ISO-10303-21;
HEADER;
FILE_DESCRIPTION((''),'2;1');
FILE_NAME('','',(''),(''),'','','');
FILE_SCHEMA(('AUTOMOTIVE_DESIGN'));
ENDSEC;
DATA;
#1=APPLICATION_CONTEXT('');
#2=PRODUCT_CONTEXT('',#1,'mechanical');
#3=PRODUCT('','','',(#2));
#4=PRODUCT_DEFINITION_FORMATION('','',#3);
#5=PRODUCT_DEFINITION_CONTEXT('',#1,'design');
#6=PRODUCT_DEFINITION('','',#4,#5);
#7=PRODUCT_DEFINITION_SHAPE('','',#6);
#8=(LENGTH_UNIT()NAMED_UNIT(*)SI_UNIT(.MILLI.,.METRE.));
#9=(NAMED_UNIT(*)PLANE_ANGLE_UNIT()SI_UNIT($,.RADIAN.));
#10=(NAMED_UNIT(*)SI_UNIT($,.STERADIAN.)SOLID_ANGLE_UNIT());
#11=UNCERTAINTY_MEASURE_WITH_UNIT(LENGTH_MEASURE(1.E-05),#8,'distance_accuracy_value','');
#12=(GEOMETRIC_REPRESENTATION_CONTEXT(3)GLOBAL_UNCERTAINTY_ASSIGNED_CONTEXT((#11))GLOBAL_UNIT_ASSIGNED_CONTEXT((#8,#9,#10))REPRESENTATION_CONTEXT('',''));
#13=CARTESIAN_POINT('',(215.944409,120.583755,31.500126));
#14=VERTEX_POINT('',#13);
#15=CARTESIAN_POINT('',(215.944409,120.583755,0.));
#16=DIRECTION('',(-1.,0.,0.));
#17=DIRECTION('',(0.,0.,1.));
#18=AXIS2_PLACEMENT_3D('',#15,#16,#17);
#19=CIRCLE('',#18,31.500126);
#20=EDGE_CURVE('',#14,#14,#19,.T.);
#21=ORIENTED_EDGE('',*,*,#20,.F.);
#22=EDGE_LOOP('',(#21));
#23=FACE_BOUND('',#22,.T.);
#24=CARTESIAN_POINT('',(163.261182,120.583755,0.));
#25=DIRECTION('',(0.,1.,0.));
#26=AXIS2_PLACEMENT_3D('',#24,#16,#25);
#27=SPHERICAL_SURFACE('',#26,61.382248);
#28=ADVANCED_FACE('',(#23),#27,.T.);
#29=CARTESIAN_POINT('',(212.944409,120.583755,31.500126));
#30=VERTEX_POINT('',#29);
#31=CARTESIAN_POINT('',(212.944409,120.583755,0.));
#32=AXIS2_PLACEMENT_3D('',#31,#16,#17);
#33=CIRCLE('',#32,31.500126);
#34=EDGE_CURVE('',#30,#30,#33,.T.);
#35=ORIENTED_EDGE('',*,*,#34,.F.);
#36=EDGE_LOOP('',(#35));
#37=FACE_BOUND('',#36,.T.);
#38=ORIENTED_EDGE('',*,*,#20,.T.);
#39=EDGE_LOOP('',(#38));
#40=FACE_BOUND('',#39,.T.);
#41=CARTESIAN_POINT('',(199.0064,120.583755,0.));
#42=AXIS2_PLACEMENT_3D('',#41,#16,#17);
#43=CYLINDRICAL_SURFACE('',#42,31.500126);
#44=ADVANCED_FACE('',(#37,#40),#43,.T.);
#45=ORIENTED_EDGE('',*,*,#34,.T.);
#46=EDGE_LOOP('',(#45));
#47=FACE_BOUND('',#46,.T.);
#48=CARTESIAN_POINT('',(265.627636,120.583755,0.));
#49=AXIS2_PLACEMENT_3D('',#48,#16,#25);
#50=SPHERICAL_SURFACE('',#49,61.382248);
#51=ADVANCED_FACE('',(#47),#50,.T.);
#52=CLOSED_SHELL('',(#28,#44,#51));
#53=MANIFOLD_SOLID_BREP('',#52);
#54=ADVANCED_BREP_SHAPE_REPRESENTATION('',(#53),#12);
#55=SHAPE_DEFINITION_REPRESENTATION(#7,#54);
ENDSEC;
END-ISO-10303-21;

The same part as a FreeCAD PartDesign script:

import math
import FreeCAD as App
import Part
import Sketcher
from FreeCAD import Vector
Q = App.Units.Quantity

doc = App.newDocument("Part")
body = doc.addObject("PartDesign::Body", "Body")

# Sketch on XY plane
sketch1 = body.newObject("Sketcher::SketchObject", "Sketch")
sketch1.AttachmentSupport = (doc.getObject("XY_Plane"), [""])
sketch1.MapMode = "FlatFace"
sketch1.addGeometry([
    Part.LineSegment(Vector(212.9, 120.6, 0), Vector(224.6, 120.6, 0)),  # 0
    Part.ArcOfCircle(Part.Circle(Vector(163.3, 120.6, 0), Vector(0, 0, 1), 61.4), math.radians(0), math.radians(31)),  # 1
    Part.LineSegment(Vector(215.9, 152.1, 0), Vector(212.9, 152.1, 0)),  # 2
    Part.ArcOfCircle(Part.Circle(Vector(265.6, 120.6, 0), Vector(0, 0, 1), 61.4), math.radians(149), math.radians(180)),  # 3
    Part.LineSegment(Vector(204.2, 120.6, 0), Vector(212.9, 120.6, 0)),  # 4
], False)
sketch1.addGeometry(Part.LineSegment(Vector(163.3, 120.6, 0), Vector(265.6, 120.6, 0)), True)  # axis
sketch1.addConstraint([
    Sketcher.Constraint("Coincident", 0, 2, 1, 1),
    Sketcher.Constraint("Coincident", 1, 2, 2, 1),
    Sketcher.Constraint("Coincident", 2, 2, 3, 1),
    Sketcher.Constraint("Coincident", 3, 2, 4, 1),
    Sketcher.Constraint("Coincident", 4, 2, 0, 1),
    Sketcher.Constraint("Horizontal", 0),
    Sketcher.Constraint("Horizontal", 2),
    Sketcher.Constraint("Horizontal", 4),
    Sketcher.Constraint("Horizontal", 5),
    Sketcher.Constraint("Coincident", 5, 1, 1, 3),
    Sketcher.Constraint("Coincident", 5, 2, 3, 3),
    Sketcher.Constraint("Equal", 1, 3),
    Sketcher.Constraint("Horizontal", 3, 3, 0, 2),
    Sketcher.Constraint("Vertical", 2, 2, 4, 2),
    Sketcher.Constraint("DistanceX", 2, 2, 2, 1, Q("3 mm")),
    Sketcher.Constraint("Radius", 1, Q("61.382248 mm")),
    Sketcher.Constraint("DistanceX", 0, 1, 0, 2, Q("11.699021 mm")),
    Sketcher.Constraint("DistanceX", -1, 1, 0, 2, Q("224.64343 mm")),
    Sketcher.Constraint("DistanceY", -1, 1, 1, 2, Q("152.083881 mm")),
])
revolution = body.newObject("PartDesign::Revolution", "Revolution")
revolution.Profile = sketch1
revolution.ReferenceAxis = (sketch1, ["Axis0"])
revolution.Angle = 360

doc.recompute()
